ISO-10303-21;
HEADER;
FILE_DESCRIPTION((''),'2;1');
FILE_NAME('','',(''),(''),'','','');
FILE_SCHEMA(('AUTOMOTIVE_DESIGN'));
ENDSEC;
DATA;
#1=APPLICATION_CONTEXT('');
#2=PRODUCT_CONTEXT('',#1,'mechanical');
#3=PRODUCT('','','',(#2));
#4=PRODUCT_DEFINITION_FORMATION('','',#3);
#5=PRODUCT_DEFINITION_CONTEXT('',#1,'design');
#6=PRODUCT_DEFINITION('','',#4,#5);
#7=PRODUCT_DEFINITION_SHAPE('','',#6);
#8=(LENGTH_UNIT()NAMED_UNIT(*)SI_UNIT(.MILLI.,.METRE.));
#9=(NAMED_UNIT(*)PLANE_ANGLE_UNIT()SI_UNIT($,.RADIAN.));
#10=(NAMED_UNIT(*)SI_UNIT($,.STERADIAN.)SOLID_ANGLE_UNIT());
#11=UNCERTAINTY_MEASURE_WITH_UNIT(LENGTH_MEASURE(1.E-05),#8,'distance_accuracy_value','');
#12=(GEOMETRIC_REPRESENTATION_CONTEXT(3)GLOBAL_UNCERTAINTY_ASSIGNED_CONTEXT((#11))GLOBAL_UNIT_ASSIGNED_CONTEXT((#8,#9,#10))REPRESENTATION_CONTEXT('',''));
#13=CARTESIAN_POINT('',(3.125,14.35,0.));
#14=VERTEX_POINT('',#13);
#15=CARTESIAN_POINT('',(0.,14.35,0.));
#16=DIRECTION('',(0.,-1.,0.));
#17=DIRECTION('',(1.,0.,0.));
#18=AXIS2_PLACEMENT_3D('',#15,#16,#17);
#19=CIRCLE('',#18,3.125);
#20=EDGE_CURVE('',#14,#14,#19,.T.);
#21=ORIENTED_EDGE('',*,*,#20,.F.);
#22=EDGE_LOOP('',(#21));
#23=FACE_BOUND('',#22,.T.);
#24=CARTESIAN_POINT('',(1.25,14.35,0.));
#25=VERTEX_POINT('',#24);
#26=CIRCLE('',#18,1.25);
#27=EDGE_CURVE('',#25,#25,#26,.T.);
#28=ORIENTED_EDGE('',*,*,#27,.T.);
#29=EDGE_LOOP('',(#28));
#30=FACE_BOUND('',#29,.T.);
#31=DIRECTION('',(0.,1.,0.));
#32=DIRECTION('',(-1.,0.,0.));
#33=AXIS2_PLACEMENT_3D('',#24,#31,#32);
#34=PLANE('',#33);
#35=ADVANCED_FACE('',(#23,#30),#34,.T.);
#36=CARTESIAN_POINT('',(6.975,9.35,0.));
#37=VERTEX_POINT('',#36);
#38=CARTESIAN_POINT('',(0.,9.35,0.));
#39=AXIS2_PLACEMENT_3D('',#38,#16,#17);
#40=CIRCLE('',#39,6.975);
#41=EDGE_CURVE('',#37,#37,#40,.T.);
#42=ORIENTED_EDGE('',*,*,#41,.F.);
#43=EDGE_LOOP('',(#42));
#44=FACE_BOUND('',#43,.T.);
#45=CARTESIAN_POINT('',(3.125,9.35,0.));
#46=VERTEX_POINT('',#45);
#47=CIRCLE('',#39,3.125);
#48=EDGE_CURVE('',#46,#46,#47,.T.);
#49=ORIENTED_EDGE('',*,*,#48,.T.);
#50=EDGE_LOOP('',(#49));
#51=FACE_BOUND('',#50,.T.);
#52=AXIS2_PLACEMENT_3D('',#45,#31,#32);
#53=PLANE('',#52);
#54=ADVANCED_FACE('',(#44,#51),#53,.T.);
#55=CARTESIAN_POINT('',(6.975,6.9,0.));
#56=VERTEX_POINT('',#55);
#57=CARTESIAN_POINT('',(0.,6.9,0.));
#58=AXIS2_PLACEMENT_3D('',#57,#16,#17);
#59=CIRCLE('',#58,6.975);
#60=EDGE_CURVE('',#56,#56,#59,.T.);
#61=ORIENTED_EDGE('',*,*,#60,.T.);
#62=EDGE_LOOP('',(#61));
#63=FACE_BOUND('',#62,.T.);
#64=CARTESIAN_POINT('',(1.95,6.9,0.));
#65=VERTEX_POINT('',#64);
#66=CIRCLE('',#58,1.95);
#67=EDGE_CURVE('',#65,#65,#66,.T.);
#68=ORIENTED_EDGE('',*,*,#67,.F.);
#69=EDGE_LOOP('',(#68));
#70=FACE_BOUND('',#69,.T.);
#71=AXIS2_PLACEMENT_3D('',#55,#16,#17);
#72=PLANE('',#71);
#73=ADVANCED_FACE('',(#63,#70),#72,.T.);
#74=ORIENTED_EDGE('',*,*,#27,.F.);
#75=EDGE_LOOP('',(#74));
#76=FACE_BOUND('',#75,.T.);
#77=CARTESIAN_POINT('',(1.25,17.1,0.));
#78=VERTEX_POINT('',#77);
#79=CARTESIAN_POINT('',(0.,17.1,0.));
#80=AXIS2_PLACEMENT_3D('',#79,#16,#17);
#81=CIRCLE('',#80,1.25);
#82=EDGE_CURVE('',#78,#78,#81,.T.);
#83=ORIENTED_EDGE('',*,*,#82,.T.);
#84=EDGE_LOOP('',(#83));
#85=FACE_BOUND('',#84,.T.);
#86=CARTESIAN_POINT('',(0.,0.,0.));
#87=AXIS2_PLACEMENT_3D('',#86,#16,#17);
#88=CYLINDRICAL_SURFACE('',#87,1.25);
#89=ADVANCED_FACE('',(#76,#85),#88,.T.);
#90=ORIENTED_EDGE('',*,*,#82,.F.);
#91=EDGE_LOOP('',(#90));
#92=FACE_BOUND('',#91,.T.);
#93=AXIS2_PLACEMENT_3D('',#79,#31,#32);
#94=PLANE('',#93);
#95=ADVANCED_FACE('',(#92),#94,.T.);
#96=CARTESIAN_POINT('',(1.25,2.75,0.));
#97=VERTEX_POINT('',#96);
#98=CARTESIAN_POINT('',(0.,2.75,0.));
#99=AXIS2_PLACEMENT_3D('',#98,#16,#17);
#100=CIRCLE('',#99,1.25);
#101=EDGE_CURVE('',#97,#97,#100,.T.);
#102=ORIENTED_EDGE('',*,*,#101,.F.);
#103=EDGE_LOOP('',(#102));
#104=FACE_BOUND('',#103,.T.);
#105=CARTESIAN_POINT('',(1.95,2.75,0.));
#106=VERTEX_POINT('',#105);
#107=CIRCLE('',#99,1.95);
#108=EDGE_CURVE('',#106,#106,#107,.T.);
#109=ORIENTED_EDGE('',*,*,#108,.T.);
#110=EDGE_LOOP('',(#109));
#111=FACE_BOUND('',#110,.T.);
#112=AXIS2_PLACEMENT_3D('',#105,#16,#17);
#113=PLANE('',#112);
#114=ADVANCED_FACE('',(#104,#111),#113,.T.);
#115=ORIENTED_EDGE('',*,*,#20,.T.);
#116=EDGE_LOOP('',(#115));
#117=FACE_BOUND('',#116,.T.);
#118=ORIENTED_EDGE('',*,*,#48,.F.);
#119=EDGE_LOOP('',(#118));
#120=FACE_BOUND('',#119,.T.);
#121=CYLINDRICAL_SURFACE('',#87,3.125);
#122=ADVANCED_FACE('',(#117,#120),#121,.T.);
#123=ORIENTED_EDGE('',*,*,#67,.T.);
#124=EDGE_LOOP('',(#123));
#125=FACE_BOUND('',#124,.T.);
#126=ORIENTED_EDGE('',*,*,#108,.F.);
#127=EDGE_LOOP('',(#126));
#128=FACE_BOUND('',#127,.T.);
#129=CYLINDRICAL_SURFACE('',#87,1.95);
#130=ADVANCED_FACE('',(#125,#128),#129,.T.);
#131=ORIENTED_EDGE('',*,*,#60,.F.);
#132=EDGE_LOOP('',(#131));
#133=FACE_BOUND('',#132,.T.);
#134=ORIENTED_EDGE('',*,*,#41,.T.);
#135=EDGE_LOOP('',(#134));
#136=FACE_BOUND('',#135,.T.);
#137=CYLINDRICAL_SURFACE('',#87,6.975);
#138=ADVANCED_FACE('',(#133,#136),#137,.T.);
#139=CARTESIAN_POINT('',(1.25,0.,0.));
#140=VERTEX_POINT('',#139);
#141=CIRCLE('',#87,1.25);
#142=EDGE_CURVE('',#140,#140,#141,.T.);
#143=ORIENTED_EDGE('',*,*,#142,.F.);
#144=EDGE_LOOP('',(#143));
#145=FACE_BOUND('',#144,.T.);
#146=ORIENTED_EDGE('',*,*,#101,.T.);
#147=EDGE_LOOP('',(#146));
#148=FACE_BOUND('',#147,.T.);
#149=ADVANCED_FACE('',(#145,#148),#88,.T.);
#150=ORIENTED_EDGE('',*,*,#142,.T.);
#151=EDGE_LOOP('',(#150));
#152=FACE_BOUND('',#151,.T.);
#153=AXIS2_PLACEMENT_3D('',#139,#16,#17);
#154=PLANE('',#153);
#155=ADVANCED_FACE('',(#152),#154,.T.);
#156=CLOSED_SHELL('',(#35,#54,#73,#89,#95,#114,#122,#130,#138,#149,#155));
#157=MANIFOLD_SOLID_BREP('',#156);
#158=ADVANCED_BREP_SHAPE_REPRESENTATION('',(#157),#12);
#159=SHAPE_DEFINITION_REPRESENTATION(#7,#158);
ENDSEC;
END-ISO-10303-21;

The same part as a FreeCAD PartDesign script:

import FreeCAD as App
import Part
import Sketcher

V = App.Vector
Q = App.Units.Quantity

doc = App.newDocument("Part")
params = doc.addObject("Spreadsheet::Sheet", "Params")
for row, (alias, value) in enumerate([
    ("sketch1_height", "5 mm"),
    ("sketch1_width", "0.7 mm"),
    ("sketch1_height2", "17.1 mm"),
    ("sketch1_width2", "1.25 mm"),
    ("sketch1_width3", "3.85 mm"),
    ("revolution_angle", "360 deg"),
], start=1):
    params.set(f"A{row}", alias)
    params.set(f"B{row}", "=" + value)
    params.setAlias(f"B{row}", alias)

body = doc.addObject("PartDesign::Body", "Body")

# Sketch on XY plane
sketch1 = body.newObject("Sketcher::SketchObject", "Sketch")
sketch1.AttachmentSupport = (doc.getObject("XY_Plane"), [""])
sketch1.MapMode = "FlatFace"
sketch1.addGeometry([
    Part.LineSegment(V(0, 17.1, 0), V(0, 0, 0)),  # 0
    Part.LineSegment(V(0, 0, 0), V(1.2, 0, 0)),  # 1
    Part.LineSegment(V(1.2, 0, 0), V(1.2, 2.8, 0)),  # 2
    Part.LineSegment(V(1.2, 2.8, 0), V(1.9, 2.8, 0)),  # 3
    Part.LineSegment(V(1.9, 2.8, 0), V(1.9, 6.9, 0)),  # 4
    Part.LineSegment(V(1.9, 6.9, 0), V(7, 6.9, 0)),  # 5
    Part.LineSegment(V(7, 6.9, 0), V(7, 9.3, 0)),  # 6
    Part.LineSegment(V(7, 9.3, 0), V(3.1, 9.3, 0)),  # 7
    Part.LineSegment(V(3.1, 9.3, 0), V(3.1, 14.3, 0)),  # 8
    Part.LineSegment(V(3.1, 14.3, 0), V(1.2, 14.3, 0)),  # 9
    Part.LineSegment(V(1.2, 14.3, 0), V(1.2, 17.1, 0)),  # 10
    Part.LineSegment(V(1.2, 17.1, 0), V(0, 17.1, 0)),  # 11
], False)
sketch1.addConstraint([
    Sketcher.Constraint("Coincident", 0, 2, 1, 1),
    Sketcher.Constraint("Coincident", 1, 2, 2, 1),
    Sketcher.Constraint("Coincident", 2, 2, 3, 1),
    Sketcher.Constraint("Coincident", 3, 2, 4, 1),
    Sketcher.Constraint("Coincident", 4, 2, 5, 1),
    Sketcher.Constraint("Coincident", 5, 2, 6, 1),
    Sketcher.Constraint("Coincident", 6, 2, 7, 1),
    Sketcher.Constraint("Coincident", 7, 2, 8, 1),
    Sketcher.Constraint("Coincident", 8, 2, 9, 1),
    Sketcher.Constraint("Coincident", 9, 2, 10, 1),
    Sketcher.Constraint("Coincident", 10, 2, 11, 1),
    Sketcher.Constraint("Coincident", 11, 2, 0, 1),
    Sketcher.Constraint("Vertical", 0),
    Sketcher.Constraint("Horizontal", 1),
    Sketcher.Constraint("Vertical", 2),
    Sketcher.Constraint("Horizontal", 3),
    Sketcher.Constraint("Vertical", 4),
    Sketcher.Constraint("Horizontal", 5),
    Sketcher.Constraint("Vertical", 6),
    Sketcher.Constraint("Horizontal", 7),
    Sketcher.Constraint("Vertical", 8),
    Sketcher.Constraint("Horizontal", 9),
    Sketcher.Constraint("Vertical", 10),
    Sketcher.Constraint("Horizontal", 11),
    Sketcher.Constraint("Coincident", 0, 2, -1, 1),
    Sketcher.Constraint("Vertical", 2, 2, 9, 2),
    Sketcher.Constraint("Equal", 2, 10),
    Sketcher.Constraint("DistanceY", 8, 1, 8, 2, Q("5 mm")),
    Sketcher.Constraint("DistanceX", 3, 1, 3, 2, Q("0.7 mm")),
    Sketcher.Constraint("DistanceY", 0, 2, 0, 1, Q("17.1 mm")),
    Sketcher.Constraint("DistanceX", 1, 1, 1, 2, Q("1.25 mm")),
    Sketcher.Constraint("DistanceX", 7, 2, 7, 1, Q("3.85 mm")),
    Sketcher.Constraint("DistanceY", 2, 1, 2, 2, Q("2.75 mm")),
    Sketcher.Constraint("DistanceY", 4, 1, 4, 2, Q("4.15 mm")),
    Sketcher.Constraint("DistanceX", 5, 1, 5, 2, Q("5.025 mm")),
])
sketch1.setExpression("Constraints[27]", "Params.sketch1_height")
sketch1.setExpression("Constraints[28]", "Params.sketch1_width")
sketch1.setExpression("Constraints[29]", "Params.sketch1_height2")
sketch1.setExpression("Constraints[30]", "Params.sketch1_width2")
sketch1.setExpression("Constraints[31]", "Params.sketch1_width3")
revolution = body.newObject("PartDesign::Revolution", "Revolution")
revolution.Profile = sketch1
revolution.ReferenceAxis = (sketch1, ["V_Axis"])
revolution.setExpression("Angle", "Params.revolution_angle")

doc.recompute()
